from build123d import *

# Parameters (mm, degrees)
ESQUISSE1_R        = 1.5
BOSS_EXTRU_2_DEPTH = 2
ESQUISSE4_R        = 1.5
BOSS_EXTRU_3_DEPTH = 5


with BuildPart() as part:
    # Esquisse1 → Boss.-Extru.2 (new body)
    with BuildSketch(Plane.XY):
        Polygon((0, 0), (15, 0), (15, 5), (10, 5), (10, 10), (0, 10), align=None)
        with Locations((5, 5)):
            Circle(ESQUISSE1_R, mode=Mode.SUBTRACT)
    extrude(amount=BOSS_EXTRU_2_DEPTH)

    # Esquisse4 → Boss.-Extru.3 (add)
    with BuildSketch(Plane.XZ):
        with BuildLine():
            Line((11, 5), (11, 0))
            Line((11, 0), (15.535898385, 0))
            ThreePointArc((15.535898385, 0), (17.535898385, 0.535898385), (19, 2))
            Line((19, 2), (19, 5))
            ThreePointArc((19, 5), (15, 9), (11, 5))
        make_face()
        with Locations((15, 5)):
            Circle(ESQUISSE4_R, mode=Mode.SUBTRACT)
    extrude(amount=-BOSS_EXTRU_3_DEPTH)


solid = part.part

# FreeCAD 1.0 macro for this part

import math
import FreeCAD as App
import Part
import Sketcher
from FreeCAD import Vector
Q = App.Units.Quantity

doc = App.newDocument("Part")
params = doc.addObject("Spreadsheet::Sheet", "Params")
for row, (alias, value) in enumerate([
    ("sketch1_diameter", "3 mm"),
    ("sketch1_width", "15 mm"),
    ("pad1_length", "2 mm"),
    ("sketch2_diameter", "3 mm"),
    ("sketch2_radius", "4 mm"),
    ("sketch2_height", "5 mm"),
    ("sketch2_height2", "3 mm"),
    ("pad2_length", "5 mm"),
], start=1):
    params.set(f"A{row}", alias)
    params.set(f"B{row}", "=" + value)
    params.setAlias(f"B{row}", alias)

body = doc.addObject("PartDesign::Body", "Body")

sketch1 = body.newObject("Sketcher::SketchObject", "Sketch")
sketch1.AttachmentSupport = (doc.getObject("XY_Plane"), [""])
sketch1.MapMode = "FlatFace"
sketch1.addGeometry(Part.LineSegment(Vector(0, 0, 0), Vector(15, 0, 0)), False)
sketch1.addGeometry(Part.LineSegment(Vector(15, 0, 0), Vector(15, 5, 0)), False)
sketch1.addGeometry(Part.LineSegment(Vector(15, 5, 0), Vector(10, 5, 0)), False)
sketch1.addGeometry(Part.LineSegment(Vector(10, 5, 0), Vector(10, 10, 0)), False)
sketch1.addGeometry(Part.LineSegment(Vector(10, 10, 0), Vector(0, 10, 0)), False)
sketch1.addGeometry(Part.LineSegment(Vector(0, 10, 0), Vector(0, 0, 0)), False)
sketch1.addGeometry(Part.Circle(Vector(5, 5, 0), Vector(0, 0, 1), 1.5), False)
sketch1.addConstraint(Sketcher.Constraint("Coincident", 0, 2, 1, 1))
sketch1.addConstraint(Sketcher.Constraint("Coincident", 1, 2, 2, 1))
sketch1.addConstraint(Sketcher.Constraint("Coincident", 2, 2, 3, 1))
sketch1.addConstraint(Sketcher.Constraint("Coincident", 3, 2, 4, 1))
sketch1.addConstraint(Sketcher.Constraint("Coincident", 4, 2, 5, 1))
sketch1.addConstraint(Sketcher.Constraint("Coincident", 5, 2, 0, 1))
sketch1.addConstraint(Sketcher.Constraint("Horizontal", 0))
sketch1.addConstraint(Sketcher.Constraint("Vertical", 1))
sketch1.addConstraint(Sketcher.Constraint("Horizontal", 2))
sketch1.addConstraint(Sketcher.Constraint("Vertical", 3))
sketch1.addConstraint(Sketcher.Constraint("Horizontal", 4))
sketch1.addConstraint(Sketcher.Constraint("Vertical", 5))
sketch1.addConstraint(Sketcher.Constraint("Coincident", 5, 2, -1, 1))
sketch1.addConstraint(Sketcher.Constraint("Horizontal", 6, 3, 1, 2))
sketch1.addConstraint(Sketcher.Constraint("Equal", 2, 1))
sketch1.addConstraint(Sketcher.Constraint("Equal", 1, 3))
sketch1.addConstraint(Sketcher.Constraint("Equal", 4, 5))
sketch1.addConstraint(Sketcher.Constraint("Diameter", 6, Q("3 mm")))
sketch1.addConstraint(Sketcher.Constraint("DistanceX", 0, 1, 0, 2, Q("15 mm")))
sketch1.addConstraint(Sketcher.Constraint("DistanceX", -1, 1, 6, 3, Q("5 mm")))
sketch1.setExpression("Constraints[17]", "Params.sketch1_diameter")
sketch1.setExpression("Constraints[18]", "Params.sketch1_width")
pad1 = body.newObject("PartDesign::Pad", "Pad")
pad1.Profile = sketch1
pad1.setExpression("Length", "Params.pad1_length")

sketch2 = body.newObject("Sketcher::SketchObject", "Sketch001")
sketch2.AttachmentSupport = (doc.getObject("XZ_Plane"), [""])
sketch2.MapMode = "FlatFace"
sketch2.addGeometry(Part.LineSegment(Vector(11, 5, 0), Vector(11, 0, 0)), False)
sketch2.addGeometry(Part.LineSegment(Vector(11, 0, 0), Vector(15.5, 0, 0)), False)
sketch2.addGeometry(Part.ArcOfCircle(Part.Circle(Vector(15.5, 4, 0), Vector(0, 0, 1), 4), math.radians(-90), math.radians(-30)), False)
sketch2.addGeometry(Part.LineSegment(Vector(19, 2, 0), Vector(19, 5, 0)), False)
sketch2.addGeometry(Part.ArcOfCircle(Part.Circle(Vector(15, 5, 0), Vector(0, 0, 1), 4), math.radians(0), math.radians(180)), False)
sketch2.addGeometry(Part.Circle(Vector(15, 5, 0), Vector(0, 0, 1), 1.5), False)
sketch2.addConstraint(Sketcher.Constraint("Coincident", 0, 2, 1, 1))
sketch2.addConstraint(Sketcher.Constraint("Tangent", 1, 2, 2, 1))
sketch2.addConstraint(Sketcher.Constraint("Coincident", 2, 2, 3, 1))
sketch2.addConstraint(Sketcher.Constraint("Tangent", 3, 2, 4, 1))
sketch2.addConstraint(Sketcher.Constraint("Tangent", 4, 2, 0, 1))
sketch2.addConstraint(Sketcher.Constraint("Vertical", 0))
sketch2.addConstraint(Sketcher.Constraint("Horizontal", 1))
sketch2.addConstraint(Sketcher.Constraint("Vertical", 3))
sketch2.addConstraint(Sketcher.Constraint("Coincident", 5, 3, 4, 3))
sketch2.addConstraint(Sketcher.Constraint("Equal", 2, 4))
sketch2.addConstraint(Sketcher.Constraint("PointOnObject", 0, 2, -1))
sketch2.addConstraint(Sketcher.Constraint("Diameter", 5, Q("3 mm")))
sketch2.addConstraint(Sketcher.Constraint("Radius", 2, Q("4 mm")))
sketch2.addConstraint(Sketcher.Constraint("DistanceY", 0, 2, 0, 1, Q("5 mm")))
sketch2.addConstraint(Sketcher.Constraint("DistanceY", 3, 1, 3, 2, Q("3 mm")))
sketch2.addConstraint(Sketcher.Constraint("DistanceX", -1, 1, 4, 3, Q("15 mm")))
sketch2.setExpression("Constraints[11]", "Params.sketch2_diameter")
sketch2.setExpression("Constraints[12]", "Params.sketch2_radius")
sketch2.setExpression("Constraints[13]", "Params.sketch2_height")
sketch2.setExpression("Constraints[14]", "Params.sketch2_height2")
pad2 = body.newObject("PartDesign::Pad", "Pad001")
pad2.Profile = sketch2
pad2.setExpression("Length", "Params.pad2_length")
pad2.Reversed = True

doc.recompute()
